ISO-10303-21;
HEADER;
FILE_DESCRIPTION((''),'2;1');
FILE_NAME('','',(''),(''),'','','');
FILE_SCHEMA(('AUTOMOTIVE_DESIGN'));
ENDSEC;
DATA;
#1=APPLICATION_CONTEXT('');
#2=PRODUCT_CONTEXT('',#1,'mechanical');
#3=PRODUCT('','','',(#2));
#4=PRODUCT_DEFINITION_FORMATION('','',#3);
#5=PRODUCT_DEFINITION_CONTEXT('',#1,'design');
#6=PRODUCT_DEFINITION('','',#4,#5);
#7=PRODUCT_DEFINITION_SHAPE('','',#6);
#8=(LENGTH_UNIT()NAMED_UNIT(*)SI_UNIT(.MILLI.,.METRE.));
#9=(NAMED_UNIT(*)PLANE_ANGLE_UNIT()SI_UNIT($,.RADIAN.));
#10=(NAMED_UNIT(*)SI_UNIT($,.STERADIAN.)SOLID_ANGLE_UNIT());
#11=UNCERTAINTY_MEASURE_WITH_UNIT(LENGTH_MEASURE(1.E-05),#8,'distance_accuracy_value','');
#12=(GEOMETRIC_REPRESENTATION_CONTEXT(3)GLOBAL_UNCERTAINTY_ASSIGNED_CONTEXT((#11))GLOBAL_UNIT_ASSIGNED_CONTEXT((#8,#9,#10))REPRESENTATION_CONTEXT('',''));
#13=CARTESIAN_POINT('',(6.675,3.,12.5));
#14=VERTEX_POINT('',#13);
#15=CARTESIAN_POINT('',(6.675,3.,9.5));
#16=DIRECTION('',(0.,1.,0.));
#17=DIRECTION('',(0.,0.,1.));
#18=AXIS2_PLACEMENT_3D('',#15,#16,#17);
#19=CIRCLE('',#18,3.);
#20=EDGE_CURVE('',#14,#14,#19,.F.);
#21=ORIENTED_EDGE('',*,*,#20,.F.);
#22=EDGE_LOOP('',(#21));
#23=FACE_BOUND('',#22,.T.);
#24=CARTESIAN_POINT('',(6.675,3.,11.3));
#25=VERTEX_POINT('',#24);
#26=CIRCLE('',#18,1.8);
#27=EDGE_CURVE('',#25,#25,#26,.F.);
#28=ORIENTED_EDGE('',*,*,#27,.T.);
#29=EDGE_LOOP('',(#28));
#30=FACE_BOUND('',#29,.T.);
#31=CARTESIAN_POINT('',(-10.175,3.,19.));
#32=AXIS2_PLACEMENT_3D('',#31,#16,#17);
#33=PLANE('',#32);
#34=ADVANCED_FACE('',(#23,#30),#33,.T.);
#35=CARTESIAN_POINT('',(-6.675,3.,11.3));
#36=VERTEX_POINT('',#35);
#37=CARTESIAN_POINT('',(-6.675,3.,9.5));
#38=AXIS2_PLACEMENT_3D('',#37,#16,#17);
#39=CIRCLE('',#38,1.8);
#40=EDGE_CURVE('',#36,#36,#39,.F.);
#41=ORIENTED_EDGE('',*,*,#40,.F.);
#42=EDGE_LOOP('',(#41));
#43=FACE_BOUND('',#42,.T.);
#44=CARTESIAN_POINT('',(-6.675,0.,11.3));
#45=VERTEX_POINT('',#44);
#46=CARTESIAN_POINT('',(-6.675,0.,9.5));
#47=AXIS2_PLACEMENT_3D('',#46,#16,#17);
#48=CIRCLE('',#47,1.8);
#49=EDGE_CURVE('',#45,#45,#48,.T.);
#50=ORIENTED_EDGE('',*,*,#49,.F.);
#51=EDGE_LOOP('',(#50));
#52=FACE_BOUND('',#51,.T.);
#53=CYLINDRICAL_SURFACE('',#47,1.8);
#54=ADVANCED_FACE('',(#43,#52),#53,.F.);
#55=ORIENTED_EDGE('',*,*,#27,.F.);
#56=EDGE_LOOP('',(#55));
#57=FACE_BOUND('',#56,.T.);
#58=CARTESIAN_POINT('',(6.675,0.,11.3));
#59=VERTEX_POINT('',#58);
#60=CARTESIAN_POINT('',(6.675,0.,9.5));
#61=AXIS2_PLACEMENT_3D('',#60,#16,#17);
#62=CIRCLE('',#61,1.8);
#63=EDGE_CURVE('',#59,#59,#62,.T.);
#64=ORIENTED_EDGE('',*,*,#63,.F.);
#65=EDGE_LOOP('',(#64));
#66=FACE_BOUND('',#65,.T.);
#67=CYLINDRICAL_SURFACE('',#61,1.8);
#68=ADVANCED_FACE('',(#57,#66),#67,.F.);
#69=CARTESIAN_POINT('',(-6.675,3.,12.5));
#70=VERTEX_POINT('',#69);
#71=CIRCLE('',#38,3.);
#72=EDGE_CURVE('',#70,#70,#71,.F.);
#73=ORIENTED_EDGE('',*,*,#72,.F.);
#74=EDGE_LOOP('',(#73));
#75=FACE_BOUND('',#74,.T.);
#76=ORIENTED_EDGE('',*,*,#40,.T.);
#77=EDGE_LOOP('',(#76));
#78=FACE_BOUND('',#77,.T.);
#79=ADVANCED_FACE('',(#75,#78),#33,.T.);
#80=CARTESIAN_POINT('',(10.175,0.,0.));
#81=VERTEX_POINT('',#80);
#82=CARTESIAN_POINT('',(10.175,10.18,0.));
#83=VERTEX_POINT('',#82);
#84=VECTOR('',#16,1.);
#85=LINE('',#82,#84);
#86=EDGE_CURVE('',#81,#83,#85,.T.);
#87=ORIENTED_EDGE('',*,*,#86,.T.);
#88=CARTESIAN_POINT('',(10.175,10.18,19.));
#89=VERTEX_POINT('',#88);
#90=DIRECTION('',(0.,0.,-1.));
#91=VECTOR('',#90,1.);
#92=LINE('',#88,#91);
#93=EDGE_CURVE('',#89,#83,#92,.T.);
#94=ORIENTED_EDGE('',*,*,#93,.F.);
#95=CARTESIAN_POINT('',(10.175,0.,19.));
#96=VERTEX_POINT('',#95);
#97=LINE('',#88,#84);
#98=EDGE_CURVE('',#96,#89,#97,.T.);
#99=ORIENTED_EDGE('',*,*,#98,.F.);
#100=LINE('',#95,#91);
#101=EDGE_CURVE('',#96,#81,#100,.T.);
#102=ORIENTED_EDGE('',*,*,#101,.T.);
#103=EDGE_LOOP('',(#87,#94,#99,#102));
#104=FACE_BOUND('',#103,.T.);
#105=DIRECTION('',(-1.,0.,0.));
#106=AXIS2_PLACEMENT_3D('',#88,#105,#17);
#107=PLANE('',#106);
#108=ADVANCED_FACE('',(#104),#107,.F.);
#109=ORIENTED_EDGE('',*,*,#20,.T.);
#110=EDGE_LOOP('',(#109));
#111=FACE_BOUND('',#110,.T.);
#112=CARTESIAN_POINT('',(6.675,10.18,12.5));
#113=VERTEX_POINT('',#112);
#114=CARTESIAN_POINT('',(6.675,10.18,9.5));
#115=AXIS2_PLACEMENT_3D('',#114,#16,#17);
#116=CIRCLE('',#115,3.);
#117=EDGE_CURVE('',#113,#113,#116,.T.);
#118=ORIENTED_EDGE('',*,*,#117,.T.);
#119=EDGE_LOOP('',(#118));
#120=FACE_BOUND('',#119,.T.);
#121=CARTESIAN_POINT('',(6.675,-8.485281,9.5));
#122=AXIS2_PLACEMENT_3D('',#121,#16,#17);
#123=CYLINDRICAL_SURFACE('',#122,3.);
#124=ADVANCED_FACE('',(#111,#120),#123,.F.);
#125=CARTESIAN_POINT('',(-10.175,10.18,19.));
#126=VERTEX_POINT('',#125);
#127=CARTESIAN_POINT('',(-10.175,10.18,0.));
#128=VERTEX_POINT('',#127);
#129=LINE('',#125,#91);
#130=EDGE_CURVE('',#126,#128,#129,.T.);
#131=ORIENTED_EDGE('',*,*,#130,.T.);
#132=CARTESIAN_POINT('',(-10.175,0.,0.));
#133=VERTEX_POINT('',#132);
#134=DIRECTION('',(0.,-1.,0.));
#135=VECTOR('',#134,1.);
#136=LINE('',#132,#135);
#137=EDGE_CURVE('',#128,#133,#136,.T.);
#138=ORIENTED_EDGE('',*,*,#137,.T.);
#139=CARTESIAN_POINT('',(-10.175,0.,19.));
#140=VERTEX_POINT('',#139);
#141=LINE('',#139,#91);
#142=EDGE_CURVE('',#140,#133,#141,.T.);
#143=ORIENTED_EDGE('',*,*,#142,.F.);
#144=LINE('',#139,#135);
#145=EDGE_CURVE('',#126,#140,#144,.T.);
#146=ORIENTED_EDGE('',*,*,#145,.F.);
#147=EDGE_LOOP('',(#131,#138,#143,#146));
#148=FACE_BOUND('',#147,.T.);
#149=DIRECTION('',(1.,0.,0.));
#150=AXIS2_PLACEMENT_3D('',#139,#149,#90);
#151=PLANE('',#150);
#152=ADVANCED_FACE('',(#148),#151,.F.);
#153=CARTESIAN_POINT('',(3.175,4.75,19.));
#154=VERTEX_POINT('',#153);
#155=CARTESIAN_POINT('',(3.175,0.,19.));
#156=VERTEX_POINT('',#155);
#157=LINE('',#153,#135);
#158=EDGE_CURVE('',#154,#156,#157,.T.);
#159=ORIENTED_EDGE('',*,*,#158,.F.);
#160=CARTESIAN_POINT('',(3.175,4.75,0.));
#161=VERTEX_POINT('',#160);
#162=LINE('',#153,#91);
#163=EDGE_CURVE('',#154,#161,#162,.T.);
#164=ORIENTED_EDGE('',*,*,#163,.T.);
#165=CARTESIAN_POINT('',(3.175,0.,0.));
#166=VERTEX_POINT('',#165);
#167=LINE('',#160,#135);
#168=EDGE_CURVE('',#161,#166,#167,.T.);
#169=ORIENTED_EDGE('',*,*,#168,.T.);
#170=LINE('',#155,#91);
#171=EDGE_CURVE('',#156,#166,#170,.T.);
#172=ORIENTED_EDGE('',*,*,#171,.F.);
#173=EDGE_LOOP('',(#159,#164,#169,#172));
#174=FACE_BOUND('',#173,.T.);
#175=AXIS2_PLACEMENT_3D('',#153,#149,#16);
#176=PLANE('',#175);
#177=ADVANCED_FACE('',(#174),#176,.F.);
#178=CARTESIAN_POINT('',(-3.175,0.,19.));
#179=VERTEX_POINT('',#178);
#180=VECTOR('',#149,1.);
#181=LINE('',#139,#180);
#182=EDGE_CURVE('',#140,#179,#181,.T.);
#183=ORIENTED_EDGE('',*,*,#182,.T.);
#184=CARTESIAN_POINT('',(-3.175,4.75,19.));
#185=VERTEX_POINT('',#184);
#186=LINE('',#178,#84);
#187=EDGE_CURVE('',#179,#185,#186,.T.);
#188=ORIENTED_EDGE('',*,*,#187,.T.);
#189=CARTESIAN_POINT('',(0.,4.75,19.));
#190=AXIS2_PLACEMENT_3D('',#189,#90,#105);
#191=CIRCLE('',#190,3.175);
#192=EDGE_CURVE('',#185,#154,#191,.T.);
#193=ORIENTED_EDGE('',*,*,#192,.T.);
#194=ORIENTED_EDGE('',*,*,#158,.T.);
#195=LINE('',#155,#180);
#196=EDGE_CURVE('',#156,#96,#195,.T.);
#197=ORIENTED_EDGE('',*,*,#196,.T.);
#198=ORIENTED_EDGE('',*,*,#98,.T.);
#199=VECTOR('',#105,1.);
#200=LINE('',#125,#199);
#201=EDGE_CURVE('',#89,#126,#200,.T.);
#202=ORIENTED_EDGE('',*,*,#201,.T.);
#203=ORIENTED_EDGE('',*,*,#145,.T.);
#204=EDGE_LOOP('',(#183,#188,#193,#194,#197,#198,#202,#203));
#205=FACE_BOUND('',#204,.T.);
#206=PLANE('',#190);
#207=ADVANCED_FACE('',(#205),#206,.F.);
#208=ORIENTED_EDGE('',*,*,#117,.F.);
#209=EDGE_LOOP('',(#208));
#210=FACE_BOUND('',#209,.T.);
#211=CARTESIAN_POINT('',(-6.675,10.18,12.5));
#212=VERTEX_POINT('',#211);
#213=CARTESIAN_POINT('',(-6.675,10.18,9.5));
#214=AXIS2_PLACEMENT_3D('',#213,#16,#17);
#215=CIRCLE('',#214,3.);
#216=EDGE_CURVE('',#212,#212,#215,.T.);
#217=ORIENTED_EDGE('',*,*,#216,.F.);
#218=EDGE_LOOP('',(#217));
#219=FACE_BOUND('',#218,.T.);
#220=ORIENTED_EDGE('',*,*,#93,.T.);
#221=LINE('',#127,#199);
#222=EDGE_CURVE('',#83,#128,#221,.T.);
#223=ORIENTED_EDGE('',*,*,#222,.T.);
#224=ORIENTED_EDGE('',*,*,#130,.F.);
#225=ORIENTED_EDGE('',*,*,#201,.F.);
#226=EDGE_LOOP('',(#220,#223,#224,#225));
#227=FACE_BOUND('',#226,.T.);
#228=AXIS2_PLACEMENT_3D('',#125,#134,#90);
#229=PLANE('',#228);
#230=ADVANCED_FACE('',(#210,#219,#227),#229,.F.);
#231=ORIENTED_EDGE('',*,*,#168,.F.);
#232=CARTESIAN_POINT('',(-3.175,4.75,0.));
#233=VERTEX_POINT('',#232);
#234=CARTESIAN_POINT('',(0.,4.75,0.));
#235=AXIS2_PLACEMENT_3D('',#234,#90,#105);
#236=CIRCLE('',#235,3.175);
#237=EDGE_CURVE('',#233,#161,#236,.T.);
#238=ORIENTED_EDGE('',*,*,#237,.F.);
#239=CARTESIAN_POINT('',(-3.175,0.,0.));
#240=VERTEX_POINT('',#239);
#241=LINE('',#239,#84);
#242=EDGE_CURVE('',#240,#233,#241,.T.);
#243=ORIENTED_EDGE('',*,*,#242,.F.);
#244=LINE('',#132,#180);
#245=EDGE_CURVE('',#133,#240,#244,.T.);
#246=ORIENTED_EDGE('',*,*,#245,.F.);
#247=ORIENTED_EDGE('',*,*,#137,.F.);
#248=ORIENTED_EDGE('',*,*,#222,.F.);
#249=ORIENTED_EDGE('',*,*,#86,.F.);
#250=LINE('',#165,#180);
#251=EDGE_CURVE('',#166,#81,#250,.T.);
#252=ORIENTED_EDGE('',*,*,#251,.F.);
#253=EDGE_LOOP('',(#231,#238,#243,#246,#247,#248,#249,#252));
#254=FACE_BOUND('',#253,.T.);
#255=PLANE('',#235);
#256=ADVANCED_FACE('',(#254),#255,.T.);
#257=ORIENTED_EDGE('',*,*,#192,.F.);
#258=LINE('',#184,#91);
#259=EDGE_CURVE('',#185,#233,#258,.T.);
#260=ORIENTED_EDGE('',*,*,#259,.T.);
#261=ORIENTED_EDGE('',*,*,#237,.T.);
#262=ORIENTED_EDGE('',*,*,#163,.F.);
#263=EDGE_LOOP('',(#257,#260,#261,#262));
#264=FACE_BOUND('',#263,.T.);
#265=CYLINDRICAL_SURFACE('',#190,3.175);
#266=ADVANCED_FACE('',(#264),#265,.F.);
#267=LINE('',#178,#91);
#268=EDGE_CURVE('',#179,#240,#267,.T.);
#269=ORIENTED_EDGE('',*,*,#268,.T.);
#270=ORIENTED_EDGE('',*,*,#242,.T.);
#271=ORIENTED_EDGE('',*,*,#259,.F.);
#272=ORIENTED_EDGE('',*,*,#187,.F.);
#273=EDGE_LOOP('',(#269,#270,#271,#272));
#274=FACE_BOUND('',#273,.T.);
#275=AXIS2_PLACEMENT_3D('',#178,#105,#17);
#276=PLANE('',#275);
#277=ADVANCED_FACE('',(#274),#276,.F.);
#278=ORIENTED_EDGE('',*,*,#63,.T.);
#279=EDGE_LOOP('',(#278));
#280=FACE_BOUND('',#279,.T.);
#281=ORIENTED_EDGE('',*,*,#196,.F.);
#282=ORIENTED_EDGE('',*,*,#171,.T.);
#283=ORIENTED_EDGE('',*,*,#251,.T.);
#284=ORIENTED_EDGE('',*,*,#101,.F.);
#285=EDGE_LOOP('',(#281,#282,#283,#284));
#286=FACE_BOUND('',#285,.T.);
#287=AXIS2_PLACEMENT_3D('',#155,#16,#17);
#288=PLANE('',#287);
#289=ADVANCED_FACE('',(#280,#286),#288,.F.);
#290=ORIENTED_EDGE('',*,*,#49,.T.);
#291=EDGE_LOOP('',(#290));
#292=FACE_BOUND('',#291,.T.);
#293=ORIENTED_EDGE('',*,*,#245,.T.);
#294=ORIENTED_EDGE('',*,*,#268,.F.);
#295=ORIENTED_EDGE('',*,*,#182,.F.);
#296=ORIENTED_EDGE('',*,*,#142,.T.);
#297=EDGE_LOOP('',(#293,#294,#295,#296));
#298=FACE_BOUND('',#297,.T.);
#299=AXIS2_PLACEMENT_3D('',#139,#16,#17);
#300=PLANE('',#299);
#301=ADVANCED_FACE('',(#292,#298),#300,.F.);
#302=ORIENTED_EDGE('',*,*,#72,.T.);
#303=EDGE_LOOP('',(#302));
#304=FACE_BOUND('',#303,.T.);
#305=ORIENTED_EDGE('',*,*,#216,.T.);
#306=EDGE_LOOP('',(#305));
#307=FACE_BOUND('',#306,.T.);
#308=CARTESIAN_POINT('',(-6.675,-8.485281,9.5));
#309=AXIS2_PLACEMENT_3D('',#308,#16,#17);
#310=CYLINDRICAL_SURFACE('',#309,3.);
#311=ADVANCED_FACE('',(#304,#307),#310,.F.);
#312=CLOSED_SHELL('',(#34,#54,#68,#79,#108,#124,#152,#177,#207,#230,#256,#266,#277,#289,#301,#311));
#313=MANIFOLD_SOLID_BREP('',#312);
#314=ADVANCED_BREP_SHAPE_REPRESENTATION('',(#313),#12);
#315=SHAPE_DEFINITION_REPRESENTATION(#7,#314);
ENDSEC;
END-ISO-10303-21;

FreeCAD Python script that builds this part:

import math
import FreeCAD as App
import Part
import Sketcher
from FreeCAD import Vector

doc = App.newDocument("Part")
body = doc.addObject("PartDesign::Body", "Body")

# Sketch on XY plane
sketch1 = doc.addObject("Sketcher::SketchObject", "Sketch")
body.addObject(sketch1)
sketch1.AttachmentSupport = (doc.XY_Plane, [""])
sketch1.MapMode = "FlatFace"
sketch1.addGeometry(Part.LineSegment(Vector(-10.2, 10.2, 0), Vector(-10.2, 0, 0)), False)
sketch1.addGeometry(Part.LineSegment(Vector(-10.2, 0, 0), Vector(-3.2, 0, 0)), False)
sketch1.addGeometry(Part.LineSegment(Vector(-3.2, 0, 0), Vector(-3.2, 4.8, 0)), False)
sketch1.addGeometry(Part.ArcOfCircle(Part.Circle(Vector(0, 4.8, 0), Vector(0, 0, 1), 3.2), math.radians(0), math.radians(180)), False)
sketch1.addGeometry(Part.LineSegment(Vector(3.2, 4.8, 0), Vector(3.2, 0, 0)), False)
sketch1.addGeometry(Part.LineSegment(Vector(3.2, 0, 0), Vector(10.2, 0, 0)), False)
sketch1.addGeometry(Part.LineSegment(Vector(10.2, 0, 0), Vector(10.2, 10.2, 0)), False)
sketch1.addGeometry(Part.LineSegment(Vector(10.2, 10.2, 0), Vector(-10.2, 10.2, 0)), False)
sketch1.addConstraint(Sketcher.Constraint("Coincident", 0, 2, 1, 1))
sketch1.addConstraint(Sketcher.Constraint("Coincident", 1, 2, 2, 1))
sketch1.addConstraint(Sketcher.Constraint("Tangent", 2, 2, 3, 2))
sketch1.addConstraint(Sketcher.Constraint("Tangent", 3, 1, 4, 1))
sketch1.addConstraint(Sketcher.Constraint("Coincident", 4, 2, 5, 1))
sketch1.addConstraint(Sketcher.Constraint("Coincident", 5, 2, 6, 1))
sketch1.addConstraint(Sketcher.Constraint("Coincident", 6, 2, 7, 1))
sketch1.addConstraint(Sketcher.Constraint("Coincident", 7, 2, 0, 1))
sketch1.addConstraint(Sketcher.Constraint("Vertical", 0))
sketch1.addConstraint(Sketcher.Constraint("Horizontal", 1))
sketch1.addConstraint(Sketcher.Constraint("Vertical", 2))
sketch1.addConstraint(Sketcher.Constraint("Vertical", 4))
sketch1.addConstraint(Sketcher.Constraint("Horizontal", 5))
sketch1.addConstraint(Sketcher.Constraint("Vertical", 6))
sketch1.addConstraint(Sketcher.Constraint("Horizontal", 7))
sketch1.addConstraint(Sketcher.Constraint("Symmetric", 1, 2, 4, 2, -1, 1))
sketch1.addConstraint(Sketcher.Constraint("Symmetric", 0, 2, 5, 2, -2))
sketch1.addConstraint(Sketcher.Constraint("DistanceX", 1, 1, 1, 2, 7.0))
sketch1.addConstraint(Sketcher.Constraint("Radius", 3, 3.175))
sketch1.addConstraint(Sketcher.Constraint("DistanceY", 0, 2, 0, 1, 10.18))
sketch1.addConstraint(Sketcher.Constraint("DistanceY", 2, 1, 2, 2, 4.75))
pad1 = doc.addObject("PartDesign::Pad", "Pad")
body.addObject(pad1)
pad1.Profile = sketch1
pad1.Length = 19

# Sketch on XZ plane
sketch2 = doc.addObject("Sketcher::SketchObject", "Sketch001")
body.addObject(sketch2)
sketch2.AttachmentSupport = (doc.XZ_Plane, [""])
sketch2.MapMode = "FlatFace"
sketch2.AttachmentOffset = App.Placement(Vector(0, 0, -10.18), App.Rotation())
sketch2.addGeometry(Part.Circle(Vector(-6.7, 9.5, 0), Vector(0, 0, 1), 1.8), False)
sketch2.addGeometry(Part.Circle(Vector(6.7, 9.5, 0), Vector(0, 0, 1), 1.8), False)
sketch2.addConstraint(Sketcher.Constraint("Equal", 0, 1))
sketch2.addConstraint(Sketcher.Constraint("Symmetric", 0, 3, 1, 3, -2))
sketch2.addConstraint(Sketcher.Constraint("Diameter", 0, 3.6))
sketch2.addConstraint(Sketcher.Constraint("DistanceY", -1, 1, 0, 3, 9.5))
sketch2.addConstraint(Sketcher.Constraint("DistanceX", 0, 3, 1, 3, 13.35))
pocket1 = doc.addObject("PartDesign::Pocket", "Pocket")
body.addObject(pocket1)
pocket1.Profile = sketch2
pocket1.Type = "ThroughAll"
pocket1.Reversed = True

# Sketch on XZ plane
sketch3 = doc.addObject("Sketcher::SketchObject", "Sketch002")
body.addObject(sketch3)
sketch3.AttachmentSupport = (doc.XZ_Plane, [""])
sketch3.MapMode = "FlatFace"
sketch3.AttachmentOffset = App.Placement(Vector(0, 0, -10.18), App.Rotation())
sketch3.addGeometry(Part.Circle(Vector(-6.7, 9.5, 0), Vector(0, 0, 1), 3), False)
sketch3.addGeometry(Part.Circle(Vector(-6.7, 9.5, 0), Vector(0, 0, 1), 1.8), False)
sketch3.addGeometry(Part.Circle(Vector(6.7, 9.5, 0), Vector(0, 0, 1), 3), False)
sketch3.addConstraint(Sketcher.Constraint("Coincident", 1, 3, 0, 3))
sketch3.addConstraint(Sketcher.Constraint("Equal", 0, 2))
sketch3.addConstraint(Sketcher.Constraint("Symmetric", 0, 3, 2, 3, -2))
sketch3.addConstraint(Sketcher.Constraint("Diameter", 0, 6.0))
sketch3.addConstraint(Sketcher.Constraint("Diameter", 1, 3.6))
sketch3.addConstraint(Sketcher.Constraint("DistanceY", -1, 1, 0, 3, 9.5))
sketch3.addConstraint(Sketcher.Constraint("DistanceX", 0, 3, 2, 3, 13.35))
pocket2 = doc.addObject("PartDesign::Pocket", "Pocket001")
body.addObject(pocket2)
pocket2.Profile = sketch3
pocket2.Length = 7.18
pocket2.Reversed = True

doc.recompute()
